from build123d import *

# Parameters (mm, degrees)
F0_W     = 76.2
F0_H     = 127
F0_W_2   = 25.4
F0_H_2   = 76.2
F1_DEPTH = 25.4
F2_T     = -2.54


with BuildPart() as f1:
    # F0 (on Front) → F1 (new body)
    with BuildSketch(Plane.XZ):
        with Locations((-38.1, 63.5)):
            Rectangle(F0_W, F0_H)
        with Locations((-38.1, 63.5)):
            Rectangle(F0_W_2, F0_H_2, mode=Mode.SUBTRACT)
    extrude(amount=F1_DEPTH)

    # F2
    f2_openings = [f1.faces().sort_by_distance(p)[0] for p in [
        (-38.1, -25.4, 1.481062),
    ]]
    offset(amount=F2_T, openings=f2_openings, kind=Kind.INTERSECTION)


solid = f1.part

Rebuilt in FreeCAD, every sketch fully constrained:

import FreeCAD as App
import Part
import Sketcher

V = App.Vector
Q = App.Units.Quantity


def faces_at(feature, points):
    """Names of the faces that lie closest to the given points."""
    faces = feature.Shape.Faces
    near = lambda p: min(range(len(faces)), key=lambda i: faces[i].distToShape(Part.Vertex(*p))[0])
    return sorted({f"Face{near(p) + 1}" for p in points})


def add_polygon(sketch, points):
    """Adds a closed chain of lines whose ends are joined by coincident constraints."""
    first, n = sketch.GeometryCount, len(points)
    for a, b in zip(points, points[1:] + points[:1]):
        sketch.addGeometry(Part.LineSegment(App.Vector(*a, 0), App.Vector(*b, 0)), False)
    for i in range(n):
        sketch.addConstraint(Sketcher.Constraint("Coincident", first + i, 2, first + (i + 1) % n, 1))

doc = App.newDocument("Part")
body = doc.addObject("PartDesign::Body", "Body")

# Sketch on XZ plane
sketch1 = body.newObject("Sketcher::SketchObject", "Sketch")
sketch1.AttachmentSupport = (doc.getObject("XZ_Plane"), [""])
sketch1.MapMode = "FlatFace"
add_polygon(sketch1, [(-76.2, 127), (-76.2, 0), (0, 0), (0, 127)])  # lines 0-3
add_polygon(sketch1, [(-25.4, 25.4), (-50.8, 25.4), (-50.8, 101.6), (-25.4, 101.6)])  # lines 4-7
sketch1.addConstraint(Sketcher.Constraint("Vertical", 0))
sketch1.addConstraint(Sketcher.Constraint("Horizontal", 1))
sketch1.addConstraint(Sketcher.Constraint("Vertical", 2))
sketch1.addConstraint(Sketcher.Constraint("Horizontal", 3))
sketch1.addConstraint(Sketcher.Constraint("Horizontal", 4))
sketch1.addConstraint(Sketcher.Constraint("Vertical", 5))
sketch1.addConstraint(Sketcher.Constraint("Horizontal", 6))
sketch1.addConstraint(Sketcher.Constraint("Vertical", 7))
sketch1.addConstraint(Sketcher.Constraint("Coincident", 1, 2, -1, 1))
sketch1.addConstraint(Sketcher.Constraint("Equal", 3, 5))
sketch1.addConstraint(Sketcher.Constraint("DistanceX", 1, 1, 1, 2, Q("3 in")))
sketch1.addConstraint(Sketcher.Constraint("DistanceX", 4, 2, 4, 1, Q("1 in")))
sketch1.addConstraint(Sketcher.Constraint("DistanceY", 0, 2, 0, 1, Q("5 in")))
sketch1.addConstraint(Sketcher.Constraint("DistanceX", 4, 2, -1, 1, Q("2 in")))
sketch1.addConstraint(Sketcher.Constraint("DistanceY", -1, 1, 4, 2, Q("1 in")))
pad1 = body.newObject("PartDesign::Pad", "Pad")
pad1.Profile = sketch1
pad1.Length = Q("1 in")
doc.recompute()

thickness = body.newObject("PartDesign::Thickness", "Thickness")
thickness.Base = (pad1, faces_at(pad1, [(-53.34, -25.4, 38.1)]))
thickness.Value = Q("0.1 in")
thickness.Reversed = True
thickness.Join = "Intersection"

doc.recompute()
